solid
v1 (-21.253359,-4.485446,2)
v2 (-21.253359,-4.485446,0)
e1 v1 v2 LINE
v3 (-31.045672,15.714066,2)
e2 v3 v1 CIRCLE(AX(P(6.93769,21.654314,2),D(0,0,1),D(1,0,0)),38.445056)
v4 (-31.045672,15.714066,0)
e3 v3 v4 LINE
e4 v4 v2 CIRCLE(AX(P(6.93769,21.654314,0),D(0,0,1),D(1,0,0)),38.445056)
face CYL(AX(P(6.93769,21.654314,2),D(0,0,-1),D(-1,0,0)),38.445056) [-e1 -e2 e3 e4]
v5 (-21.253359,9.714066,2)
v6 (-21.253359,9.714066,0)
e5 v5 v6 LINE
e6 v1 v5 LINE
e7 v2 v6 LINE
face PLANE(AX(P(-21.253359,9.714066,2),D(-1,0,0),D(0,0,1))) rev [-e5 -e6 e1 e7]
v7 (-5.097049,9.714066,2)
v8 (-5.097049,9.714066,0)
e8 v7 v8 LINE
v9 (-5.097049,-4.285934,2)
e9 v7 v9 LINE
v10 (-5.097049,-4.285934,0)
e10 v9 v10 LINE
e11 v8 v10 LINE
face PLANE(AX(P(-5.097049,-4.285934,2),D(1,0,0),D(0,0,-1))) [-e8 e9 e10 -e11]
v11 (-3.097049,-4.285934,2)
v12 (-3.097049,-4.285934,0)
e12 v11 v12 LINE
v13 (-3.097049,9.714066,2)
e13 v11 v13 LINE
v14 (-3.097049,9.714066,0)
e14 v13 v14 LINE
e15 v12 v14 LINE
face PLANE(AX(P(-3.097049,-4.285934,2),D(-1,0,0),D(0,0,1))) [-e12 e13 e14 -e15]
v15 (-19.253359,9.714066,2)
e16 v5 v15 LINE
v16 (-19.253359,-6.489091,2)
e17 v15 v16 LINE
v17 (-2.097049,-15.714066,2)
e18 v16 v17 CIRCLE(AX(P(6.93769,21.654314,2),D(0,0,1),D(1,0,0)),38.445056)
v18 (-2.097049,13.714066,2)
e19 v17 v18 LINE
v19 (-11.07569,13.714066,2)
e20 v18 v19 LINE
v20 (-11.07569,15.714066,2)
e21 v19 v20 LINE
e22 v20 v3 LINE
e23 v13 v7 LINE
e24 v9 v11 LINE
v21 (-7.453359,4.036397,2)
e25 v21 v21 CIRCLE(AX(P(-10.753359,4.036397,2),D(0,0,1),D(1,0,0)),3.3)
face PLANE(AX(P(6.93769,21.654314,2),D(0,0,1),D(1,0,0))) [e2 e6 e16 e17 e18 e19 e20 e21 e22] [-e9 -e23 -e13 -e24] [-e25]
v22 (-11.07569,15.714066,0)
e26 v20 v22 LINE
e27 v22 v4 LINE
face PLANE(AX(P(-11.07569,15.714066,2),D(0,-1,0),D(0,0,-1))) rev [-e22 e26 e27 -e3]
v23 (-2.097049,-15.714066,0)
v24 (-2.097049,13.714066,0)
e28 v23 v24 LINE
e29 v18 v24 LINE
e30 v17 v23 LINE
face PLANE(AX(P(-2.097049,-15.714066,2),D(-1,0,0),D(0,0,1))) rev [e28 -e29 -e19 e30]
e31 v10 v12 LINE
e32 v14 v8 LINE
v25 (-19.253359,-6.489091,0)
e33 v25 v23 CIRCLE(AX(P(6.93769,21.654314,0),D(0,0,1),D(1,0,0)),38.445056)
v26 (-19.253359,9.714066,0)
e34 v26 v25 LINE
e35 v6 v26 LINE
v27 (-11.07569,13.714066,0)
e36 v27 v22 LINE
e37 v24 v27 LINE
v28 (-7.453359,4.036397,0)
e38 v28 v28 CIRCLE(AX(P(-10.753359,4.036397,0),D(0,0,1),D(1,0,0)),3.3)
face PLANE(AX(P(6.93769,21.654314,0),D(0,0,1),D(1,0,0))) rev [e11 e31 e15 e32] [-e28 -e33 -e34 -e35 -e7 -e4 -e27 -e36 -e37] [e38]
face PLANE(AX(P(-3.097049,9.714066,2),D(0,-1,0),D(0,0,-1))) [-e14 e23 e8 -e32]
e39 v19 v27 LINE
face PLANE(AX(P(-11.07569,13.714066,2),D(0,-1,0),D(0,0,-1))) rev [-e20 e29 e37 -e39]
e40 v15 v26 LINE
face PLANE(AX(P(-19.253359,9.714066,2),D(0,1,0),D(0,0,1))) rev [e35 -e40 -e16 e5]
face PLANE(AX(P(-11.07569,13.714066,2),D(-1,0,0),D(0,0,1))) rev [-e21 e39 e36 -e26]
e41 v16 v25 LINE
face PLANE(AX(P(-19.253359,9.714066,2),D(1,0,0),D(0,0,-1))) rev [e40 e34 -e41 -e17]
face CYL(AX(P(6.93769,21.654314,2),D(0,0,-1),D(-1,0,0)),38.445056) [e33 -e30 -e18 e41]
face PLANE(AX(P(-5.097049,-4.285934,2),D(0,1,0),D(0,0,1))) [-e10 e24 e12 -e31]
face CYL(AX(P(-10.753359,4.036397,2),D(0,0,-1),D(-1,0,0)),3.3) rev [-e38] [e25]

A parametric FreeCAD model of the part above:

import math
import FreeCAD as App
import Part
import Sketcher


def add_polygon(sketch, points):
    """Adds a closed chain of lines whose ends are joined by coincident constraints."""
    first, n = sketch.GeometryCount, len(points)
    for a, b in zip(points, points[1:] + points[:1]):
        sketch.addGeometry(Part.LineSegment(App.Vector(*a, 0), App.Vector(*b, 0)), False)
    for i in range(n):
        sketch.addConstraint(Sketcher.Constraint("Coincident", first + i, 2, first + (i + 1) % n, 1))

doc = App.newDocument("Part")
body = doc.addObject("PartDesign::Body", "Body")

# Sketch on XY plane
sketch1 = body.newObject("Sketcher::SketchObject", "Sketch")
sketch1.AttachmentSupport = (doc.getObject("XY_Plane"), [""])
sketch1.MapMode = "FlatFace"
sketch1.addGeometry(Part.LineSegment(App.Vector(-19.3, 9.7, 0), App.Vector(-19.3, -6.5, 0)), False)  # 0
sketch1.addGeometry(Part.ArcOfCircle(Part.Circle(App.Vector(6.9, 21.7, 0), App.Vector(0, 0, 1), 38.4), math.radians(-133), math.radians(-104)), False)  # 1
sketch1.addGeometry(Part.LineSegment(App.Vector(-2.1, -15.7, 0), App.Vector(-2.1, 13.7, 0)), False)  # 2
sketch1.addGeometry(Part.LineSegment(App.Vector(-2.1, 13.7, 0), App.Vector(-11.1, 13.7, 0)), False)  # 3
sketch1.addGeometry(Part.LineSegment(App.Vector(-11.1, 13.7, 0), App.Vector(-11.1, 15.7, 0)), False)  # 4
sketch1.addGeometry(Part.LineSegment(App.Vector(-11.1, 15.7, 0), App.Vector(-31, 15.7, 0)), False)  # 5
sketch1.addGeometry(Part.ArcOfCircle(Part.Circle(App.Vector(6.9, 21.7, 0), App.Vector(0, 0, 1), 38.4), math.radians(-171), math.radians(-137)), False)  # 6
sketch1.addGeometry(Part.LineSegment(App.Vector(-21.3, -4.5, 0), App.Vector(-21.3, 9.7, 0)), False)  # 7
sketch1.addGeometry(Part.LineSegment(App.Vector(-21.3, 9.7, 0), App.Vector(-19.3, 9.7, 0)), False)  # 8
sketch1.addGeometry(Part.Circle(App.Vector(-10.8, 4, 0), App.Vector(0, 0, 1), 3.3), False)  # 9
add_polygon(sketch1, [(-3.1, -4.3), (-5.1, -4.3), (-5.1, 9.7), (-3.1, 9.7)])  # lines 10-13
sketch1.addConstraint([
    Sketcher.Constraint("Coincident", 0, 2, 1, 1),
    Sketcher.Constraint("Coincident", 1, 2, 2, 1),
    Sketcher.Constraint("Coincident", 2, 2, 3, 1),
    Sketcher.Constraint("Coincident", 3, 2, 4, 1),
    Sketcher.Constraint("Coincident", 4, 2, 5, 1),
    Sketcher.Constraint("Coincident", 5, 2, 6, 1),
    Sketcher.Constraint("Coincident", 6, 2, 7, 1),
    Sketcher.Constraint("Coincident", 7, 2, 8, 1),
    Sketcher.Constraint("Coincident", 8, 2, 0, 1),
    Sketcher.Constraint("Vertical", 0),
    Sketcher.Constraint("Vertical", 2),
    Sketcher.Constraint("Horizontal", 3),
    Sketcher.Constraint("Vertical", 4),
    Sketcher.Constraint("Horizontal", 5),
    Sketcher.Constraint("Vertical", 7),
    Sketcher.Constraint("Horizontal", 8),
    Sketcher.Constraint("Horizontal", 10),
    Sketcher.Constraint("Vertical", 11),
    Sketcher.Constraint("Horizontal", 12),
    Sketcher.Constraint("Vertical", 13),
    Sketcher.Constraint("Coincident", 6, 3, 1, 3),
    Sketcher.Constraint("Equal", 1, 6),
    Sketcher.Constraint("Horizontal", 8, 2, 11, 2),
    Sketcher.Constraint("Equal", 8, 10),
    Sketcher.Constraint("Equal", 12, 4),
    Sketcher.Constraint("Diameter", 9, 6.6),
    Sketcher.Constraint("DistanceX", 8, 1, 8, 2, 2.0),
    Sketcher.Constraint("DistanceY", 11, 1, 11, 2, 14.0),
    Sketcher.Constraint("DistanceY", 7, 2, 3, 2, 4.0),
    Sketcher.Constraint("DistanceX", 10, 2, 1, 2, 3.0),
    Sketcher.Constraint("DistanceX", 0, 2, 9, 3, 8.5),
    Sketcher.Constraint("Radius", 1, 38.445056),
    Sketcher.Constraint("DistanceX", 3, 2, 3, 1, 8.978641),
    Sketcher.Constraint("DistanceX", 5, 2, 5, 1, 19.969982),
    Sketcher.Constraint("DistanceY", 0, 2, 0, 1, 16.203158),
    Sketcher.Constraint("DistanceY", 2, 1, 2, 2, 29.428132),
    Sketcher.Constraint("DistanceX", -1, 1, 1, 3, 6.93769),
    Sketcher.Constraint("DistanceY", 0, 2, -1, 1, 6.489091),
    Sketcher.Constraint("DistanceY", 0, 2, 9, 3, 10.525488),
])
pad1 = body.newObject("PartDesign::Pad", "Pad")
pad1.Profile = sketch1
pad1.Length = 2

doc.recompute()
